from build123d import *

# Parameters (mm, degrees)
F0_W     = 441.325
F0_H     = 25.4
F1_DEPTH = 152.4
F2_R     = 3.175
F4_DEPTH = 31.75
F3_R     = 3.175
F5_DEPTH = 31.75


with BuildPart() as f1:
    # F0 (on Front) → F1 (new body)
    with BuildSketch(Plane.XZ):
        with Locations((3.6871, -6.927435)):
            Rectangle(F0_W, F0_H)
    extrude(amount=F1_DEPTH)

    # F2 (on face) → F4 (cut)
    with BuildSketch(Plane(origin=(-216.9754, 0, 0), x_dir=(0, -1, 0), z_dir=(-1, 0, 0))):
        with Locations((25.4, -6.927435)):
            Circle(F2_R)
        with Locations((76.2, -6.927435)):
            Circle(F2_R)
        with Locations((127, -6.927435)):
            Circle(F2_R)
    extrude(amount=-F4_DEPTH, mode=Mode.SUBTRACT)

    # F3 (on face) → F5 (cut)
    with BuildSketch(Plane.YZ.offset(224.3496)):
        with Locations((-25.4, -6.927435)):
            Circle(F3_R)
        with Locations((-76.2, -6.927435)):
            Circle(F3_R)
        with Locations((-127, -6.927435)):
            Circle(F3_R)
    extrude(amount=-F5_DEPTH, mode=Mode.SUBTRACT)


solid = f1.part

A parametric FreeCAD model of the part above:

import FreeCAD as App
import Part
import Sketcher
Q = App.Units.Quantity

doc = App.newDocument("Part")
body = doc.addObject("PartDesign::Body", "Body")

sketch1 = body.newObject("Sketcher::SketchObject", "Sketch")
sketch1.AttachmentSupport = (doc.getObject("XZ_Plane"), [""])
sketch1.MapMode = "FlatFace"
sketch1.addGeometry(Part.LineSegment(App.Vector(-217, 6, 0), App.Vector(-217, -20, 0)), False)
sketch1.addGeometry(Part.LineSegment(App.Vector(-217, -20, 0), App.Vector(224, -20, 0)), False)
sketch1.addGeometry(Part.LineSegment(App.Vector(224, -20, 0), App.Vector(224, 6, 0)), False)
sketch1.addGeometry(Part.LineSegment(App.Vector(224, 6, 0), App.Vector(-217, 6, 0)), False)
sketch1.addConstraint(Sketcher.Constraint("Coincident", 0, 2, 1, 1))
sketch1.addConstraint(Sketcher.Constraint("Coincident", 1, 2, 2, 1))
sketch1.addConstraint(Sketcher.Constraint("Coincident", 2, 2, 3, 1))
sketch1.addConstraint(Sketcher.Constraint("Coincident", 3, 2, 0, 1))
sketch1.addConstraint(Sketcher.Constraint("Vertical", 0))
sketch1.addConstraint(Sketcher.Constraint("Horizontal", 1))
sketch1.addConstraint(Sketcher.Constraint("Vertical", 2))
sketch1.addConstraint(Sketcher.Constraint("Horizontal", 3))
sketch1.addConstraint(Sketcher.Constraint("DistanceY", 0, 2, 0, 1, Q("1 in")))
sketch1.addConstraint(Sketcher.Constraint("DistanceX", 1, 1, 1, 2, Q("17.375 in")))
sketch1.addConstraint(Sketcher.Constraint("DistanceX", 0, 2, -1, 1, Q("216.9754 mm")))
sketch1.addConstraint(Sketcher.Constraint("DistanceY", 0, 2, -1, 1, Q("19.627435 mm")))
pad1 = body.newObject("PartDesign::Pad", "Pad")
pad1.Profile = sketch1
pad1.Length = Q("6 in")

sketch2 = body.newObject("Sketcher::SketchObject", "Sketch001")
sketch2.AttachmentSupport = (doc.getObject("YZ_Plane"), [""])
sketch2.MapMode = "FlatFace"
sketch2.AttachmentOffset = App.Placement(App.Vector(0, 0, -216.9754), App.Rotation())
sketch2.addGeometry(Part.Circle(App.Vector(-25.4, -6.9, 0), App.Vector(0, 0, 1), 3.2), False)
sketch2.addGeometry(Part.Circle(App.Vector(-76.2, -6.9, 0), App.Vector(0, 0, 1), 3.2), False)
sketch2.addGeometry(Part.Circle(App.Vector(-127, -6.9, 0), App.Vector(0, 0, 1), 3.2), False)
sketch2.addConstraint(Sketcher.Constraint("Equal", 0, 1))
sketch2.addConstraint(Sketcher.Constraint("Equal", 1, 2))
sketch2.addConstraint(Sketcher.Constraint("Horizontal", 0, 3, 1, 3))
sketch2.addConstraint(Sketcher.Constraint("Horizontal", 1, 3, 2, 3))
sketch2.addConstraint(Sketcher.Constraint("Diameter", 0, Q("0.25 in")))
sketch2.addConstraint(Sketcher.Constraint("DistanceX", 0, 3, -1, 1, Q("1 in")))
sketch2.addConstraint(Sketcher.Constraint("DistanceX", 1, 3, -1, 1, Q("3 in")))
sketch2.addConstraint(Sketcher.Constraint("DistanceX", 2, 3, -1, 1, Q("5 in")))
sketch2.addConstraint(Sketcher.Constraint("DistanceY", 0, 3, -1, 1, Q("6.927435 mm")))
pocket1 = body.newObject("PartDesign::Pocket", "Pocket")
pocket1.Profile = sketch2
pocket1.Length = Q("1.25 in")
pocket1.Reversed = True

sketch3 = body.newObject("Sketcher::SketchObject", "Sketch002")
sketch3.AttachmentSupport = (doc.getObject("YZ_Plane"), [""])
sketch3.MapMode = "FlatFace"
sketch3.AttachmentOffset = App.Placement(App.Vector(0, 0, 224.3496), App.Rotation())
sketch3.addGeometry(Part.Circle(App.Vector(-25.4, -6.9, 0), App.Vector(0, 0, 1), 3.2), False)
sketch3.addGeometry(Part.Circle(App.Vector(-76.2, -6.9, 0), App.Vector(0, 0, 1), 3.2), False)
sketch3.addGeometry(Part.Circle(App.Vector(-127, -6.9, 0), App.Vector(0, 0, 1), 3.2), False)
sketch3.addConstraint(Sketcher.Constraint("Equal", 0, 1))
sketch3.addConstraint(Sketcher.Constraint("Equal", 1, 2))
sketch3.addConstraint(Sketcher.Constraint("Horizontal", 0, 3, 1, 3))
sketch3.addConstraint(Sketcher.Constraint("Horizontal", 1, 3, 2, 3))
sketch3.addConstraint(Sketcher.Constraint("Diameter", 0, Q("0.25 in")))
sketch3.addConstraint(Sketcher.Constraint("DistanceX", 0, 3, -1, 1, Q("1 in")))
sketch3.addConstraint(Sketcher.Constraint("DistanceX", 1, 3, -1, 1, Q("3 in")))
sketch3.addConstraint(Sketcher.Constraint("DistanceX", 2, 3, -1, 1, Q("5 in")))
sketch3.addConstraint(Sketcher.Constraint("DistanceY", 0, 3, -1, 1, Q("6.927435 mm")))
pocket2 = body.newObject("PartDesign::Pocket", "Pocket001")
pocket2.Profile = sketch3
pocket2.Length = Q("1.25 in")

doc.recompute()
